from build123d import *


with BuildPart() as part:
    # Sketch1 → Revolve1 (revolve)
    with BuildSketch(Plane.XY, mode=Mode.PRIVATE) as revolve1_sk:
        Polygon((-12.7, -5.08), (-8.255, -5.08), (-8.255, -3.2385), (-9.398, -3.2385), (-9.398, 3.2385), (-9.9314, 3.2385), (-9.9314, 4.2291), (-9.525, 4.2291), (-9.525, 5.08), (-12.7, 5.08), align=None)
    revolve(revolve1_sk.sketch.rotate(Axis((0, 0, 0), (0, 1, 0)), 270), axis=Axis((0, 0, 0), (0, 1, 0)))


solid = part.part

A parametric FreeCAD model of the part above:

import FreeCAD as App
import Part
import Sketcher

V = App.Vector
Q = App.Units.Quantity


def add_polygon(sketch, points):
    """Adds a closed chain of lines whose ends are joined by coincident constraints."""
    first, n = sketch.GeometryCount, len(points)
    for a, b in zip(points, points[1:] + points[:1]):
        sketch.addGeometry(Part.LineSegment(App.Vector(*a, 0), App.Vector(*b, 0)), False)
    for i in range(n):
        sketch.addConstraint(Sketcher.Constraint("Coincident", first + i, 2, first + (i + 1) % n, 1))

doc = App.newDocument("Part")
body = doc.addObject("PartDesign::Body", "Body")

# Sketch on XY plane
sketch1 = body.newObject("Sketcher::SketchObject", "Sketch")
sketch1.AttachmentSupport = (doc.getObject("XY_Plane"), [""])
sketch1.MapMode = "FlatFace"
add_polygon(sketch1, [(-12.7, -5.08), (-8.26, -5.08), (-8.26, -3.24), (-9.4, -3.24), (-9.4, 3.24), (-9.93, 3.24), (-9.93, 4.23), (-9.53, 4.23), (-9.53, 5.08), (-12.7, 5.08)])  # lines 0-9
sketch1.addConstraint([
    Sketcher.Constraint("Horizontal", 0),
    Sketcher.Constraint("Vertical", 1),
    Sketcher.Constraint("Horizontal", 2),
    Sketcher.Constraint("Vertical", 3),
    Sketcher.Constraint("Horizontal", 4),
    Sketcher.Constraint("Vertical", 5),
    Sketcher.Constraint("Horizontal", 6),
    Sketcher.Constraint("Vertical", 7),
    Sketcher.Constraint("Horizontal", 8),
    Sketcher.Constraint("Vertical", 9),
    Sketcher.Constraint("DistanceY", 9, 2, 9, 1, Q("0.4 in")),
    Sketcher.Constraint("DistanceY", 0, 2, -1, 1, Q("0.2 in")),
    Sketcher.Constraint("DistanceX", 8, 2, -1, 1, Q("0.5 in")),
    Sketcher.Constraint("DistanceX", 0, 1, 0, 2, Q("0.175 in")),
    Sketcher.Constraint("DistanceX", 2, 2, 2, 1, Q("0.045 in")),
    Sketcher.Constraint("DistanceX", 4, 2, 4, 1, Q("0.021 in")),
    Sketcher.Constraint("DistanceX", 6, 1, 6, 2, Q("0.016 in")),
    Sketcher.Constraint("DistanceY", 3, 1, 3, 2, Q("0.255 in")),
    Sketcher.Constraint("DistanceY", 5, 1, 5, 2, Q("0.039 in")),
    Sketcher.Constraint("DistanceY", 1, 1, 1, 2, Q("0.0725 in")),
])
revolution = body.newObject("PartDesign::Revolution", "Revolution")
revolution.Profile = sketch1
revolution.ReferenceAxis = (sketch1, ["V_Axis"])
revolution.Angle = 360

doc.recompute()
